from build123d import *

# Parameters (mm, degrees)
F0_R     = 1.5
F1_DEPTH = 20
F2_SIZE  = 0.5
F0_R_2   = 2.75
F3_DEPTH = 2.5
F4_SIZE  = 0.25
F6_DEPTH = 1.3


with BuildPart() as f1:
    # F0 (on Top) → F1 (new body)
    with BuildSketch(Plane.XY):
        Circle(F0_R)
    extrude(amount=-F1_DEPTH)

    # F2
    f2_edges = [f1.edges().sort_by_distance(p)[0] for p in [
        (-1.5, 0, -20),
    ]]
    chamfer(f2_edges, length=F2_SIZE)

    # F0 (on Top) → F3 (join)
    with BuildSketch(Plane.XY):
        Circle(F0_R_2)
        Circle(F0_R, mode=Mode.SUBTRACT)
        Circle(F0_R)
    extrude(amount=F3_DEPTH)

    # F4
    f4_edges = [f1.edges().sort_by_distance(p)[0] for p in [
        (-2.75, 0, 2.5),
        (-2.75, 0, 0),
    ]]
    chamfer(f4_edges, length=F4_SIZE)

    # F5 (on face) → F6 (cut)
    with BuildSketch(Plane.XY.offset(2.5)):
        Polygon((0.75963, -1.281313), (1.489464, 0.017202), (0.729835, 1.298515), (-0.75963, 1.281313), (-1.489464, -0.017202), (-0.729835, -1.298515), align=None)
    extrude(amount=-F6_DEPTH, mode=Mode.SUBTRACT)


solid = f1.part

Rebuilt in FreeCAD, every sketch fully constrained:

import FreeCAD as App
import Part
import Sketcher
from FreeCAD import Vector


def edges_at(feature, points):
    """Names of the edges that pass closest to the given points."""
    edges = feature.Shape.Edges
    near = lambda p: min(range(len(edges)), key=lambda i: edges[i].distToShape(Part.Vertex(*p))[0])
    return sorted({f"Edge{near(p) + 1}" for p in points})

doc = App.newDocument("Part")
body = doc.addObject("PartDesign::Body", "Body")

# Sketch on XY plane
sketch1 = body.newObject("Sketcher::SketchObject", "Sketch")
sketch1.AttachmentSupport = (doc.getObject("XY_Plane"), [""])
sketch1.MapMode = "FlatFace"
sketch1.addGeometry(Part.Circle(Vector(0, 0, 0), Vector(0, 0, 1), 1.5), False)
sketch1.addConstraint(Sketcher.Constraint("Coincident", 0, 3, -1, 1))
sketch1.addConstraint(Sketcher.Constraint("Diameter", 0, 3.0))
pad1 = body.newObject("PartDesign::Pad", "Pad")
pad1.Profile = sketch1
pad1.Length = 20
pad1.Reversed = True
doc.recompute()

chamfer = body.newObject("PartDesign::Chamfer", "Chamfer")
chamfer.Base = (pad1, edges_at(pad1, [(-1.5, 0, -20)]))
chamfer.Size = 0.5

# Sketch on XY plane
sketch2 = body.newObject("Sketcher::SketchObject", "Sketch001")
sketch2.AttachmentSupport = (doc.getObject("XY_Plane"), [""])
sketch2.MapMode = "FlatFace"
sketch2.addGeometry(Part.Circle(Vector(0, 0, 0), Vector(0, 0, 1), 2.75), False)
sketch2.addConstraint(Sketcher.Constraint("Coincident", 0, 3, -1, 1))
sketch2.addConstraint(Sketcher.Constraint("Diameter", 0, 5.5))
pad2 = body.newObject("PartDesign::Pad", "Pad001")
pad2.Profile = sketch2
pad2.Length = 2.5
doc.recompute()

chamfer2 = body.newObject("PartDesign::Chamfer", "Chamfer001")
chamfer2.Base = (pad2, edges_at(pad2, [(-2.75, 0, 2.5), (-2.75, 0, 0)]))
chamfer2.Size = 0.25

# Sketch on XY plane
sketch3 = body.newObject("Sketcher::SketchObject", "Sketch002")
sketch3.AttachmentSupport = (doc.getObject("XY_Plane"), [""])
sketch3.MapMode = "FlatFace"
sketch3.AttachmentOffset = App.Placement(Vector(0, 0, 2.5), App.Rotation())
sketch3.addGeometry(Part.LineSegment(Vector(0.75963, -1.281313, 0), Vector(1.489464, 0.017202, 0)), False)
sketch3.addGeometry(Part.LineSegment(Vector(1.489464, 0.017202, 0), Vector(0.729835, 1.298515, 0)), False)
sketch3.addGeometry(Part.LineSegment(Vector(0.729835, 1.298515, 0), Vector(-0.75963, 1.281313, 0)), False)
sketch3.addGeometry(Part.LineSegment(Vector(-0.75963, 1.281313, 0), Vector(-1.489464, -0.017202, 0)), False)
sketch3.addGeometry(Part.LineSegment(Vector(-1.489464, -0.017202, 0), Vector(-0.729835, -1.298515, 0)), False)
sketch3.addGeometry(Part.LineSegment(Vector(-0.729835, -1.298515, 0), Vector(0.75963, -1.281313, 0)), False)
sketch3.addConstraint(Sketcher.Constraint("Coincident", 0, 2, 1, 1))
sketch3.addConstraint(Sketcher.Constraint("Coincident", 1, 2, 2, 1))
sketch3.addConstraint(Sketcher.Constraint("Coincident", 2, 2, 3, 1))
sketch3.addConstraint(Sketcher.Constraint("Coincident", 3, 2, 4, 1))
sketch3.addConstraint(Sketcher.Constraint("Coincident", 4, 2, 5, 1))
sketch3.addConstraint(Sketcher.Constraint("Coincident", 5, 2, 0, 1))
sketch3.addConstraint(Sketcher.Constraint("Symmetric", 0, 2, 3, 2, -1, 1))
sketch3.addConstraint(Sketcher.Constraint("Symmetric", 1, 2, 4, 2, -1, 1))
sketch3.addConstraint(Sketcher.Constraint("Symmetric", 2, 2, 5, 2, -1, 1))
sketch3.addConstraint(Sketcher.Constraint("Equal", 0, 1))
sketch3.addConstraint(Sketcher.Constraint("Equal", 1, 2))
sketch3.addConstraint(Sketcher.Constraint("DistanceY", -1, 1, 0, 2, 0.017202))
sketch3.addConstraint(Sketcher.Constraint("DistanceX", 3, 2, 1, 2, 2.219299))
sketch3.addConstraint(Sketcher.Constraint("DistanceX", 2, 2, -1, 1, 0.75963))
sketch3.addConstraint(Sketcher.Constraint("DistanceX", 1, 2, 0, 2, 0.759629))
pocket1 = body.newObject("PartDesign::Pocket", "Pocket")
pocket1.Profile = sketch3
pocket1.Length = 1.3

doc.recompute()
